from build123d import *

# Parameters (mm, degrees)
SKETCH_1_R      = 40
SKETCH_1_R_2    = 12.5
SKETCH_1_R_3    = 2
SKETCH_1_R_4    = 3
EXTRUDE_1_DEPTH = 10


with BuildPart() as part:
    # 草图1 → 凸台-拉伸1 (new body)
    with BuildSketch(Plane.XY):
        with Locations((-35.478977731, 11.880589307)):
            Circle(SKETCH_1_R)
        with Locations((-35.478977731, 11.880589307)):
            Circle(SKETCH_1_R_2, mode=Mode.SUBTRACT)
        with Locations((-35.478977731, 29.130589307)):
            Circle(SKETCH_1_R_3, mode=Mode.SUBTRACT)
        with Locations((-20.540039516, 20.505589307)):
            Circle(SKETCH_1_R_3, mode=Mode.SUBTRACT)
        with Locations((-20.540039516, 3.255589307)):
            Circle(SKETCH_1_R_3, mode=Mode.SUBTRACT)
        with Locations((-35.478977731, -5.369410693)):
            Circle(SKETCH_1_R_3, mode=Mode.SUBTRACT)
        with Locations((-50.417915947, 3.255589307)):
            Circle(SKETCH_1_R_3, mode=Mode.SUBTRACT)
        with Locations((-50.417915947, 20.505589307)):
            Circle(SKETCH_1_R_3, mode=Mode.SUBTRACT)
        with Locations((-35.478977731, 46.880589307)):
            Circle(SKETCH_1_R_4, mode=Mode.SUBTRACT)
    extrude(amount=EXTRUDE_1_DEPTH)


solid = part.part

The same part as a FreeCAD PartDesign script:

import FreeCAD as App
import Part
import Sketcher

V = App.Vector
Q = App.Units.Quantity

doc = App.newDocument("Part")
body = doc.addObject("PartDesign::Body", "Body")

# Sketch on XY plane
sketch1 = body.newObject("Sketcher::SketchObject", "Sketch")
sketch1.AttachmentSupport = (doc.getObject("XY_Plane"), [""])
sketch1.MapMode = "FlatFace"
sketch1.addGeometry([
    Part.Circle(V(-35.5, 11.9, 0), V(0, 0, 1), 40),  # 0
    Part.Circle(V(-50.4, 3.3, 0), V(0, 0, 1), 2),  # 1
    Part.Circle(V(-50.4, 20.5, 0), V(0, 0, 1), 2),  # 2
    Part.Circle(V(-35.5, -5.4, 0), V(0, 0, 1), 2),  # 3
    Part.Circle(V(-20.5, 3.3, 0), V(0, 0, 1), 2),  # 4
    Part.Circle(V(-35.5, 11.9, 0), V(0, 0, 1), 12.5),  # 5
    Part.Circle(V(-20.5, 20.5, 0), V(0, 0, 1), 2),  # 6
    Part.Circle(V(-35.5, 29.1, 0), V(0, 0, 1), 2),  # 7
    Part.Circle(V(-35.5, 46.9, 0), V(0, 0, 1), 3),  # 8
], False)
sketch1.addConstraint([
    Sketcher.Constraint("Coincident", 5, 3, 0, 3),
    Sketcher.Constraint("Equal", 1, 2),
    Sketcher.Constraint("Equal", 2, 3),
    Sketcher.Constraint("Equal", 3, 4),
    Sketcher.Constraint("Equal", 4, 6),
    Sketcher.Constraint("Equal", 6, 7),
    Sketcher.Constraint("Horizontal", 1, 3, 4, 3),
    Sketcher.Constraint("Horizontal", 2, 3, 6, 3),
    Sketcher.Constraint("Vertical", 1, 3, 2, 3),
    Sketcher.Constraint("Vertical", 0, 3, 3, 3),
    Sketcher.Constraint("Vertical", 4, 3, 6, 3),
    Sketcher.Constraint("Vertical", 5, 3, 7, 3),
    Sketcher.Constraint("Vertical", 7, 3, 8, 3),
    Sketcher.Constraint("Diameter", 0, Q("80 mm")),
    Sketcher.Constraint("Diameter", 1, Q("4 mm")),
    Sketcher.Constraint("Diameter", 5, Q("25 mm")),
    Sketcher.Constraint("Diameter", 8, Q("6 mm")),
    Sketcher.Constraint("DistanceY", 0, 3, 8, 3, Q("35 mm")),
    Sketcher.Constraint("DistanceY", 1, 3, 2, 3, Q("17.25 mm")),
    Sketcher.Constraint("DistanceY", 3, 3, 0, 3, Q("17.25 mm")),
    Sketcher.Constraint("DistanceY", 0, 3, 7, 3, Q("17.25 mm")),
    Sketcher.Constraint("DistanceY", 1, 3, 0, 3, Q("8.625 mm")),
    Sketcher.Constraint("DistanceY", -1, 1, 0, 3, Q("11.880589 mm")),
    Sketcher.Constraint("DistanceX", 4, 3, -1, 1, Q("20.54004 mm")),
    Sketcher.Constraint("DistanceX", 1, 3, 0, 3, Q("14.938938 mm")),
    Sketcher.Constraint("DistanceX", 0, 3, 4, 3, Q("14.938938 mm")),
])
pad1 = body.newObject("PartDesign::Pad", "Pad")
pad1.Profile = sketch1
pad1.Length = 10

doc.recompute()
